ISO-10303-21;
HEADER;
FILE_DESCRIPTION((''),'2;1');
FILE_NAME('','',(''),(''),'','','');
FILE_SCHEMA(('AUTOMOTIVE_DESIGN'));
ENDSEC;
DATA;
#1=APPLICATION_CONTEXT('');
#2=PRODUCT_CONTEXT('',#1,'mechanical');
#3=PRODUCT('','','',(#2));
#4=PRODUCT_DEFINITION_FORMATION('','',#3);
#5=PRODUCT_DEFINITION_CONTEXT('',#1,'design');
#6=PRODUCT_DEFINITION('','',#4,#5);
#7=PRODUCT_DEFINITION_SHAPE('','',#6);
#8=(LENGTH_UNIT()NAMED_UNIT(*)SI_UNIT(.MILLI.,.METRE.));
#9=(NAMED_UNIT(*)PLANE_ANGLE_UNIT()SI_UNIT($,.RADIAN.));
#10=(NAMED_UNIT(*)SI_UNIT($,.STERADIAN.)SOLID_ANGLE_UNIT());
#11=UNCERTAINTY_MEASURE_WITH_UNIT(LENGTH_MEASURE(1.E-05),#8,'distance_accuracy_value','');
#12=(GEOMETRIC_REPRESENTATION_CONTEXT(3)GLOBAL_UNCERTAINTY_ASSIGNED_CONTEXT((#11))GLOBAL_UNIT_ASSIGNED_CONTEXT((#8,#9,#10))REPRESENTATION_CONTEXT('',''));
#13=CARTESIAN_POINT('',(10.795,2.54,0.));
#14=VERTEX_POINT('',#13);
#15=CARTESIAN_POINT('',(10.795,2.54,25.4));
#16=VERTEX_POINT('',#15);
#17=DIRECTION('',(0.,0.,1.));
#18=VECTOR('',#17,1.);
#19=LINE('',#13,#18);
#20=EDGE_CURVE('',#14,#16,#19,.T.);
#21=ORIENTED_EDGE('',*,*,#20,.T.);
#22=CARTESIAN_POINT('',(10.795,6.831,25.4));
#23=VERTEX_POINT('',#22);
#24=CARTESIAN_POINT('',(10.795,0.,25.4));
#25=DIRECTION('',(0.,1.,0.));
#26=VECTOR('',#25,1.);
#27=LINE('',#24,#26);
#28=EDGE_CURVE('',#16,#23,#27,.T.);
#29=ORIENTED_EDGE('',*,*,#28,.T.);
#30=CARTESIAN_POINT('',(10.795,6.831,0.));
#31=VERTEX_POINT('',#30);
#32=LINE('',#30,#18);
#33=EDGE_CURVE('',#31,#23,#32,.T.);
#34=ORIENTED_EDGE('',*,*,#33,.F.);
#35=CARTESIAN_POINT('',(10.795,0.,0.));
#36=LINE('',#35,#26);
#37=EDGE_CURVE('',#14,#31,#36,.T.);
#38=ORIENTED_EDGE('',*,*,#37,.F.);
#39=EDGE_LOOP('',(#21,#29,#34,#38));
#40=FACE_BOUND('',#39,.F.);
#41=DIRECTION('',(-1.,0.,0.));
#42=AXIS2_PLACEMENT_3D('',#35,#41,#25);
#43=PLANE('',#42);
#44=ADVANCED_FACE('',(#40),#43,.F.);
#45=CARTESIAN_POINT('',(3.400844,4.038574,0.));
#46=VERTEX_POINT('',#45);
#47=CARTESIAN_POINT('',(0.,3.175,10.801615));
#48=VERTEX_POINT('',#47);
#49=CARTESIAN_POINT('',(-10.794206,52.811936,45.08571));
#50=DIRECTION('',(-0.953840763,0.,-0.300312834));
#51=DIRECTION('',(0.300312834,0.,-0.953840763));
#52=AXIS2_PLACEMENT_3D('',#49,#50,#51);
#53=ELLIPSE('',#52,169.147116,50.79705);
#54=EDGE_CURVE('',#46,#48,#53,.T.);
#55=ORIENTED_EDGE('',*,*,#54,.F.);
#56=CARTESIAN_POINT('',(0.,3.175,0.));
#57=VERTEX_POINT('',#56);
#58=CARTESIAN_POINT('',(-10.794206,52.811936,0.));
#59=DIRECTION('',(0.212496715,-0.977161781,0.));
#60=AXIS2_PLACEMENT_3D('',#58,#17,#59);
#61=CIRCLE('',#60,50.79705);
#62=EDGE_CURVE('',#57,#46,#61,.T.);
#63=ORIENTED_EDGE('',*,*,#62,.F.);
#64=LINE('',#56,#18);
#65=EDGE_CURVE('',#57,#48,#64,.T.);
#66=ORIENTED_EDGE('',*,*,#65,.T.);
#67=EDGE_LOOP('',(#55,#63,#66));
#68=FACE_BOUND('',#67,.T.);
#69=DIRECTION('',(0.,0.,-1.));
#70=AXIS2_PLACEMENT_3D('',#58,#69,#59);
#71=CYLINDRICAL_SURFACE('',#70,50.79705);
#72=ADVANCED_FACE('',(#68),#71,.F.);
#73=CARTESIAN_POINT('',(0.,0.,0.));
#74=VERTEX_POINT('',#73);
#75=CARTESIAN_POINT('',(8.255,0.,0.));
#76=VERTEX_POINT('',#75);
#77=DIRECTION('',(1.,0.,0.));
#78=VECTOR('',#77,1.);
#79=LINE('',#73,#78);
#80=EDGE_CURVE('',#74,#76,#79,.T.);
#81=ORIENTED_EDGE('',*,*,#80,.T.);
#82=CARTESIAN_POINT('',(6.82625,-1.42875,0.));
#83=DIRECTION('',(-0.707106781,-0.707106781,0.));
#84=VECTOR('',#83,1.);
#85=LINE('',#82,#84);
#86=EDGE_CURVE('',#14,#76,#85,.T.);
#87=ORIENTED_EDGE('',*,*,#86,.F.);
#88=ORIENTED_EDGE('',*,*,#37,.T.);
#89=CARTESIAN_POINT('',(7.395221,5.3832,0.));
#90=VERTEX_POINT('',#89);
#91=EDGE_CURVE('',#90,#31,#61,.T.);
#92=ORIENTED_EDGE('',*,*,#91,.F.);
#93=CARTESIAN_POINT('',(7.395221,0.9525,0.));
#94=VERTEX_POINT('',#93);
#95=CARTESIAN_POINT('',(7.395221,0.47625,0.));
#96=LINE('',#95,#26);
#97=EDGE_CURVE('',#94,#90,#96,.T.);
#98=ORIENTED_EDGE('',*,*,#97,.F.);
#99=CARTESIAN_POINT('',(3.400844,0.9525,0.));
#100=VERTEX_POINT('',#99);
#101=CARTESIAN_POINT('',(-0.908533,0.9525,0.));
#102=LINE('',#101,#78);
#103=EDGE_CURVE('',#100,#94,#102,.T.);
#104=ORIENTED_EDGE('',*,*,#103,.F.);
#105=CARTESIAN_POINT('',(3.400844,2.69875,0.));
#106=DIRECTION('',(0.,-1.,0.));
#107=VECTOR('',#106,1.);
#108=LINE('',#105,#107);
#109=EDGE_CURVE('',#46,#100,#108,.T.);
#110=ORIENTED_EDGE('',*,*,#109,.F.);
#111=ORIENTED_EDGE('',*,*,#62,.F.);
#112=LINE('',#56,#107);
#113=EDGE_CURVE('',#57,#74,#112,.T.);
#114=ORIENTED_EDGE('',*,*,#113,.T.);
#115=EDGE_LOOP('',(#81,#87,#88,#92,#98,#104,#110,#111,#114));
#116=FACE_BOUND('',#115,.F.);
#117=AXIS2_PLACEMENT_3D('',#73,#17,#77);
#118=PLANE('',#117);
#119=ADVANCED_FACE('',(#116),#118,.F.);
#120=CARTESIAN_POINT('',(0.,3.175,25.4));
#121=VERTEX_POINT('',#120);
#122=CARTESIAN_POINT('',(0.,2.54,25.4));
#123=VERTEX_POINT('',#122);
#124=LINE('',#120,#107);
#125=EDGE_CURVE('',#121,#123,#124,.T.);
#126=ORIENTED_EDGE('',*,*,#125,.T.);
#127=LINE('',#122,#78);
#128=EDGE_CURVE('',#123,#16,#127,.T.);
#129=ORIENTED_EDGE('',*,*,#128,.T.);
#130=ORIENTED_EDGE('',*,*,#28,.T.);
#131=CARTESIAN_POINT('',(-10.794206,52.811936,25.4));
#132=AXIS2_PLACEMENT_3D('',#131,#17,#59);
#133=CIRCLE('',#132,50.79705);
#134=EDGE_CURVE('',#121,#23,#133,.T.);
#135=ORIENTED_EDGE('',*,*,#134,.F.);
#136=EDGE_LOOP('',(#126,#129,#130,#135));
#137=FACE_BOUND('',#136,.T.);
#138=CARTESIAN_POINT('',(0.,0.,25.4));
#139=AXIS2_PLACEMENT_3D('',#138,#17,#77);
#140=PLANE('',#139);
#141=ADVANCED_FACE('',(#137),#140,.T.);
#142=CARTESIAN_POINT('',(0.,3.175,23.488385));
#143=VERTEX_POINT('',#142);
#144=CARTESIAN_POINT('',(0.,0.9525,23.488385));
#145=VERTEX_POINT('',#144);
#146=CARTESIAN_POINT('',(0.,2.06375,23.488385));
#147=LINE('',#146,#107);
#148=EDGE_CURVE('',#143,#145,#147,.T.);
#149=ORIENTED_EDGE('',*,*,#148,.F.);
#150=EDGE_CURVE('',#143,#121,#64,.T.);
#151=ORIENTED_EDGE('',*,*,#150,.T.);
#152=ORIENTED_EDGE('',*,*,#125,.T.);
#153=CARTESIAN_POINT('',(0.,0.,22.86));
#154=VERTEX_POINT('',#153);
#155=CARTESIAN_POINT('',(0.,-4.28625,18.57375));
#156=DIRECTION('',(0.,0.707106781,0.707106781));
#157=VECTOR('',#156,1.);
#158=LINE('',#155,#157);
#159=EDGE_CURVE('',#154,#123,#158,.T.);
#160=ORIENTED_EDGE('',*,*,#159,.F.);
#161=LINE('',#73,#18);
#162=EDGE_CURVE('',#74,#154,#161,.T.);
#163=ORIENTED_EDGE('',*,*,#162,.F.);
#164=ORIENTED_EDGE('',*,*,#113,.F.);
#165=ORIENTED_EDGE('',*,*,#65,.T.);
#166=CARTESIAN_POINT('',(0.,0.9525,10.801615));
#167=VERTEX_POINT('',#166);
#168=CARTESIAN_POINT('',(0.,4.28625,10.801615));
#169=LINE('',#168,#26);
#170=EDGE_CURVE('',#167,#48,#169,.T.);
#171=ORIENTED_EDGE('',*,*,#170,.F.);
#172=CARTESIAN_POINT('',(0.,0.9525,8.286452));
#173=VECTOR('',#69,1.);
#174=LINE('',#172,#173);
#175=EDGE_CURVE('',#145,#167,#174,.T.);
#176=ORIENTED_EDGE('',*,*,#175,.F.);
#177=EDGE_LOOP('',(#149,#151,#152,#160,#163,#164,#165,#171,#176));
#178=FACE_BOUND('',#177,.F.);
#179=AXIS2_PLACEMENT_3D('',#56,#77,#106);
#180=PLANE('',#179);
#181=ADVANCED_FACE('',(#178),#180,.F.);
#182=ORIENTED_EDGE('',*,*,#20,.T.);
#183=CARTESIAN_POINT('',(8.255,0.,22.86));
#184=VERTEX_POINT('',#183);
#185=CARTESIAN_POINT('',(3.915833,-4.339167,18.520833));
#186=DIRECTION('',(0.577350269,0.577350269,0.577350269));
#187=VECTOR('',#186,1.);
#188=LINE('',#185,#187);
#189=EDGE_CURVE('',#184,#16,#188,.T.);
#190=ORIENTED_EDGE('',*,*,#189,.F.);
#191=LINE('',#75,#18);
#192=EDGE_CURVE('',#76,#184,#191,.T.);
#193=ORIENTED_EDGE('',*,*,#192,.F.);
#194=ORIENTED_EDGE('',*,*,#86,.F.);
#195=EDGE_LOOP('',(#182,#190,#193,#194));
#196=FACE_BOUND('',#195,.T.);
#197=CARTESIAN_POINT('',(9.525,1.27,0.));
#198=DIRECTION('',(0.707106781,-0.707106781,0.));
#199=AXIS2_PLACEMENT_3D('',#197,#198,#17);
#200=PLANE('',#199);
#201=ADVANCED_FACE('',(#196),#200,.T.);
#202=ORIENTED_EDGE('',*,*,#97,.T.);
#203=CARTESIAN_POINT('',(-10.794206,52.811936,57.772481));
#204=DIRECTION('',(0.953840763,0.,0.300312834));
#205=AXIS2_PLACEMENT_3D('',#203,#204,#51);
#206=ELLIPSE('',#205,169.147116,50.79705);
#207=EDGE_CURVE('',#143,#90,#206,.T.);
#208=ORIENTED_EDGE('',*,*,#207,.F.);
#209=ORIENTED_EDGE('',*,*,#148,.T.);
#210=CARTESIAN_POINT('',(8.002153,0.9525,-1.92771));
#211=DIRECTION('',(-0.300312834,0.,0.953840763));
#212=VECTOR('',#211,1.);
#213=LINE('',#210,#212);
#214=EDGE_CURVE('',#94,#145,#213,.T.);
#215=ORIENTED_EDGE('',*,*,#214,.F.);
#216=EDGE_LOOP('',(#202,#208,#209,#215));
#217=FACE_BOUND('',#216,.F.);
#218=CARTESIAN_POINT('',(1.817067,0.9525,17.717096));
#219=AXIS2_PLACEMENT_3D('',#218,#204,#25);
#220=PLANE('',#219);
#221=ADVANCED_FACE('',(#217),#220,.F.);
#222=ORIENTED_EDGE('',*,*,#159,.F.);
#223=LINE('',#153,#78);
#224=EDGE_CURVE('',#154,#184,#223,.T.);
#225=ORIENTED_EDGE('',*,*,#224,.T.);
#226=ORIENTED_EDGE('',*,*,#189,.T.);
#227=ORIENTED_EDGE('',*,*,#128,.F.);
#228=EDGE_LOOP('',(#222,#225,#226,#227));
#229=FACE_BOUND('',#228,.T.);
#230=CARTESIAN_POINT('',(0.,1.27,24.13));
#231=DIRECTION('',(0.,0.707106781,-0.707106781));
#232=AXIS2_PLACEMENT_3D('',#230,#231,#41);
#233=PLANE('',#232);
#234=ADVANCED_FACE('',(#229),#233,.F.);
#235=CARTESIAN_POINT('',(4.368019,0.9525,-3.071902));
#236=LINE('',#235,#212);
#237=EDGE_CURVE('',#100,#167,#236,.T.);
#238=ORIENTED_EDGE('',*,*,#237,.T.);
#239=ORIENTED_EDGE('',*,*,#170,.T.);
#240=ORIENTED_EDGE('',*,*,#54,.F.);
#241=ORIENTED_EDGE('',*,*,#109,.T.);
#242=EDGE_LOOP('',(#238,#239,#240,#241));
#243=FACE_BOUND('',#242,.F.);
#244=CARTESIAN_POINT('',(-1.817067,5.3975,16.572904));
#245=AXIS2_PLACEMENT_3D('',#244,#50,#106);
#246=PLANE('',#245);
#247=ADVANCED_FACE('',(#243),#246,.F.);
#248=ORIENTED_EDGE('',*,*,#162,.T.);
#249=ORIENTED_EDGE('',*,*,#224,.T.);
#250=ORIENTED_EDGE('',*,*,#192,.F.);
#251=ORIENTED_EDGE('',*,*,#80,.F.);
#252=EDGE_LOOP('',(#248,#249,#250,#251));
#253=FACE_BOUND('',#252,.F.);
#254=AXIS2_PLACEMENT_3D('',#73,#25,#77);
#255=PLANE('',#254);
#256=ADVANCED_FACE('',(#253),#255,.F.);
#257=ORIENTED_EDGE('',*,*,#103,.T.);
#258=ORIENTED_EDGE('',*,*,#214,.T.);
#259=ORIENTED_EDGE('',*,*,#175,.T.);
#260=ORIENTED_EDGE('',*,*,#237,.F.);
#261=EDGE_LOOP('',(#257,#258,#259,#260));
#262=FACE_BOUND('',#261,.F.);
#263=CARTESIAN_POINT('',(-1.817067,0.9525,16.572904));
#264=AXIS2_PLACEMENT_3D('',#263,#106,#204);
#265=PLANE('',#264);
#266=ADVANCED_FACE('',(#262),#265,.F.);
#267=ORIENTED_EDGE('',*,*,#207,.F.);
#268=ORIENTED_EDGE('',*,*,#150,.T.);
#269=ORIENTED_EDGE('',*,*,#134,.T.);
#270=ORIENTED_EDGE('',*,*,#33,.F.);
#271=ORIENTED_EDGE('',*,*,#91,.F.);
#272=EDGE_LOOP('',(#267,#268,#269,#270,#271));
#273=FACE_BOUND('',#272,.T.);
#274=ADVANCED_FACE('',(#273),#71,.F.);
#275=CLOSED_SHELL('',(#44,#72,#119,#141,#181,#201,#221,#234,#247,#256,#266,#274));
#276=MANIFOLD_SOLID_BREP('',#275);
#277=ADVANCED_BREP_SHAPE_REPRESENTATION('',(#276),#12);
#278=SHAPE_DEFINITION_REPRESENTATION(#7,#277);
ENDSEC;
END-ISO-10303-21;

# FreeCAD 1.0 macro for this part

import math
import FreeCAD as App
import Part
import Sketcher
from FreeCAD import Vector
Q = App.Units.Quantity


def edges_at(feature, points):
    """Names of the edges that pass closest to the given points."""
    edges = feature.Shape.Edges
    near = lambda p: min(range(len(edges)), key=lambda i: edges[i].distToShape(Part.Vertex(*p))[0])
    return sorted({f"Edge{near(p) + 1}" for p in points})

doc = App.newDocument("Part")
params = doc.addObject("Spreadsheet::Sheet", "Params")
for row, (alias, value) in enumerate([
    ("sketch1_width", "0.425 in"),
    ("sketch1_height", "0.125 in"),
    ("pad1_length", "1 in"),
    ("sketch2_height", "0.15 in"),
    ("sketch2_width", "0.175 in"),
    ("chamfer_size", "0.1 in"),
    ("chamfer2_size", "0.1 in"),
], start=1):
    params.set(f"A{row}", alias)
    params.set(f"B{row}", "=" + value)
    params.setAlias(f"B{row}", alias)

body = doc.addObject("PartDesign::Body", "Body")

# Sketch on XY plane
sketch1 = body.newObject("Sketcher::SketchObject", "Sketch")
sketch1.AttachmentSupport = (doc.getObject("XY_Plane"), [""])
sketch1.MapMode = "FlatFace"
sketch1.addGeometry(Part.ArcOfCircle(Part.Circle(Vector(-10.8, 52.8, 0), Vector(0, 0, 1), 50.8), math.radians(-77.73), math.radians(-64.85)), False)
sketch1.addGeometry(Part.LineSegment(Vector(0, 3.2, 0), Vector(0, 0, 0)), False)
sketch1.addGeometry(Part.LineSegment(Vector(0, 0, 0), Vector(10.8, 0, 0)), False)
sketch1.addGeometry(Part.LineSegment(Vector(10.8, 0, 0), Vector(10.8, 6.8, 0)), False)
sketch1.addConstraint(Sketcher.Constraint("Coincident", 0, 1, 1, 1))
sketch1.addConstraint(Sketcher.Constraint("Coincident", 1, 2, 2, 1))
sketch1.addConstraint(Sketcher.Constraint("Coincident", 2, 2, 3, 1))
sketch1.addConstraint(Sketcher.Constraint("Coincident", 3, 2, 0, 2))
sketch1.addConstraint(Sketcher.Constraint("Vertical", 1))
sketch1.addConstraint(Sketcher.Constraint("Horizontal", 2))
sketch1.addConstraint(Sketcher.Constraint("Vertical", 3))
sketch1.addConstraint(Sketcher.Constraint("Coincident", 1, 2, -1, 1))
sketch1.addConstraint(Sketcher.Constraint("DistanceX", 2, 1, 2, 2, Q("0.425 in")))
sketch1.addConstraint(Sketcher.Constraint("DistanceY", 1, 2, 1, 1, Q("0.125 in")))
sketch1.addConstraint(Sketcher.Constraint("Radius", 0, Q("50.797 mm")))
sketch1.addConstraint(Sketcher.Constraint("DistanceY", 3, 1, 3, 2, Q("6.831 mm")))
sketch1.setExpression("Constraints[8]", "Params.sketch1_width")
sketch1.setExpression("Constraints[9]", "Params.sketch1_height")
pad1 = body.newObject("PartDesign::Pad", "Pad")
pad1.Profile = sketch1
pad1.setExpression("Length", "Params.pad1_length")

# Sketch on an angled plane
sketch2 = body.newObject("Sketcher::SketchObject", "Sketch001")
sketch2.Placement = App.Placement(Vector(0, 3.175, 17.145), App.Rotation(Vector(0, 1, 0), Vector(0.953840763, 0, 0.300312834), Vector(0.300312834, 0, -0.953840763), "ZXY"))
sketch2.addGeometry(Part.LineSegment(Vector(-2.2, -1.9, 0), Vector(2.2, -1.9, 0)), False)
sketch2.addGeometry(Part.LineSegment(Vector(2.2, -1.9, 0), Vector(2.2, 1.9, 0)), False)
sketch2.addGeometry(Part.LineSegment(Vector(2.2, 1.9, 0), Vector(-2.2, 1.9, 0)), False)
sketch2.addGeometry(Part.LineSegment(Vector(-2.2, 1.9, 0), Vector(-2.2, -1.9, 0)), False)
sketch2.addConstraint(Sketcher.Constraint("Coincident", 0, 2, 1, 1))
sketch2.addConstraint(Sketcher.Constraint("Coincident", 1, 2, 2, 1))
sketch2.addConstraint(Sketcher.Constraint("Coincident", 2, 2, 3, 1))
sketch2.addConstraint(Sketcher.Constraint("Coincident", 3, 2, 0, 1))
sketch2.addConstraint(Sketcher.Constraint("Horizontal", 0))
sketch2.addConstraint(Sketcher.Constraint("Vertical", 1))
sketch2.addConstraint(Sketcher.Constraint("Horizontal", 2))
sketch2.addConstraint(Sketcher.Constraint("Vertical", 3))
sketch2.addConstraint(Sketcher.Constraint("Symmetric", 0, 2, 2, 2, -1, 1))
sketch2.addConstraint(Sketcher.Constraint("DistanceY", 1, 1, 1, 2, Q("0.15 in")))
sketch2.addConstraint(Sketcher.Constraint("DistanceX", 0, 1, 0, 2, Q("0.175 in")))
sketch2.setExpression("Constraints[9]", "Params.sketch2_height")
sketch2.setExpression("Constraints[10]", "Params.sketch2_width")
pocket1 = body.newObject("PartDesign::Pocket", "Pocket")
pocket1.Profile = sketch2
pocket1.Type = "ThroughAll"
pocket1.Midplane = True
doc.recompute()

chamfer = body.newObject("PartDesign::Chamfer", "Chamfer")
chamfer.Base = (pocket1, edges_at(pocket1, [(10.795, 0, 12.7)]))
chamfer.setExpression("Size", "Params.chamfer_size")
doc.recompute()

chamfer2 = body.newObject("PartDesign::Chamfer", "Chamfer001")
chamfer2.Base = (chamfer, edges_at(chamfer, [(4.128, 0, 25.4)]))
chamfer2.setExpression("Size", "Params.chamfer2_size")

doc.recompute()
